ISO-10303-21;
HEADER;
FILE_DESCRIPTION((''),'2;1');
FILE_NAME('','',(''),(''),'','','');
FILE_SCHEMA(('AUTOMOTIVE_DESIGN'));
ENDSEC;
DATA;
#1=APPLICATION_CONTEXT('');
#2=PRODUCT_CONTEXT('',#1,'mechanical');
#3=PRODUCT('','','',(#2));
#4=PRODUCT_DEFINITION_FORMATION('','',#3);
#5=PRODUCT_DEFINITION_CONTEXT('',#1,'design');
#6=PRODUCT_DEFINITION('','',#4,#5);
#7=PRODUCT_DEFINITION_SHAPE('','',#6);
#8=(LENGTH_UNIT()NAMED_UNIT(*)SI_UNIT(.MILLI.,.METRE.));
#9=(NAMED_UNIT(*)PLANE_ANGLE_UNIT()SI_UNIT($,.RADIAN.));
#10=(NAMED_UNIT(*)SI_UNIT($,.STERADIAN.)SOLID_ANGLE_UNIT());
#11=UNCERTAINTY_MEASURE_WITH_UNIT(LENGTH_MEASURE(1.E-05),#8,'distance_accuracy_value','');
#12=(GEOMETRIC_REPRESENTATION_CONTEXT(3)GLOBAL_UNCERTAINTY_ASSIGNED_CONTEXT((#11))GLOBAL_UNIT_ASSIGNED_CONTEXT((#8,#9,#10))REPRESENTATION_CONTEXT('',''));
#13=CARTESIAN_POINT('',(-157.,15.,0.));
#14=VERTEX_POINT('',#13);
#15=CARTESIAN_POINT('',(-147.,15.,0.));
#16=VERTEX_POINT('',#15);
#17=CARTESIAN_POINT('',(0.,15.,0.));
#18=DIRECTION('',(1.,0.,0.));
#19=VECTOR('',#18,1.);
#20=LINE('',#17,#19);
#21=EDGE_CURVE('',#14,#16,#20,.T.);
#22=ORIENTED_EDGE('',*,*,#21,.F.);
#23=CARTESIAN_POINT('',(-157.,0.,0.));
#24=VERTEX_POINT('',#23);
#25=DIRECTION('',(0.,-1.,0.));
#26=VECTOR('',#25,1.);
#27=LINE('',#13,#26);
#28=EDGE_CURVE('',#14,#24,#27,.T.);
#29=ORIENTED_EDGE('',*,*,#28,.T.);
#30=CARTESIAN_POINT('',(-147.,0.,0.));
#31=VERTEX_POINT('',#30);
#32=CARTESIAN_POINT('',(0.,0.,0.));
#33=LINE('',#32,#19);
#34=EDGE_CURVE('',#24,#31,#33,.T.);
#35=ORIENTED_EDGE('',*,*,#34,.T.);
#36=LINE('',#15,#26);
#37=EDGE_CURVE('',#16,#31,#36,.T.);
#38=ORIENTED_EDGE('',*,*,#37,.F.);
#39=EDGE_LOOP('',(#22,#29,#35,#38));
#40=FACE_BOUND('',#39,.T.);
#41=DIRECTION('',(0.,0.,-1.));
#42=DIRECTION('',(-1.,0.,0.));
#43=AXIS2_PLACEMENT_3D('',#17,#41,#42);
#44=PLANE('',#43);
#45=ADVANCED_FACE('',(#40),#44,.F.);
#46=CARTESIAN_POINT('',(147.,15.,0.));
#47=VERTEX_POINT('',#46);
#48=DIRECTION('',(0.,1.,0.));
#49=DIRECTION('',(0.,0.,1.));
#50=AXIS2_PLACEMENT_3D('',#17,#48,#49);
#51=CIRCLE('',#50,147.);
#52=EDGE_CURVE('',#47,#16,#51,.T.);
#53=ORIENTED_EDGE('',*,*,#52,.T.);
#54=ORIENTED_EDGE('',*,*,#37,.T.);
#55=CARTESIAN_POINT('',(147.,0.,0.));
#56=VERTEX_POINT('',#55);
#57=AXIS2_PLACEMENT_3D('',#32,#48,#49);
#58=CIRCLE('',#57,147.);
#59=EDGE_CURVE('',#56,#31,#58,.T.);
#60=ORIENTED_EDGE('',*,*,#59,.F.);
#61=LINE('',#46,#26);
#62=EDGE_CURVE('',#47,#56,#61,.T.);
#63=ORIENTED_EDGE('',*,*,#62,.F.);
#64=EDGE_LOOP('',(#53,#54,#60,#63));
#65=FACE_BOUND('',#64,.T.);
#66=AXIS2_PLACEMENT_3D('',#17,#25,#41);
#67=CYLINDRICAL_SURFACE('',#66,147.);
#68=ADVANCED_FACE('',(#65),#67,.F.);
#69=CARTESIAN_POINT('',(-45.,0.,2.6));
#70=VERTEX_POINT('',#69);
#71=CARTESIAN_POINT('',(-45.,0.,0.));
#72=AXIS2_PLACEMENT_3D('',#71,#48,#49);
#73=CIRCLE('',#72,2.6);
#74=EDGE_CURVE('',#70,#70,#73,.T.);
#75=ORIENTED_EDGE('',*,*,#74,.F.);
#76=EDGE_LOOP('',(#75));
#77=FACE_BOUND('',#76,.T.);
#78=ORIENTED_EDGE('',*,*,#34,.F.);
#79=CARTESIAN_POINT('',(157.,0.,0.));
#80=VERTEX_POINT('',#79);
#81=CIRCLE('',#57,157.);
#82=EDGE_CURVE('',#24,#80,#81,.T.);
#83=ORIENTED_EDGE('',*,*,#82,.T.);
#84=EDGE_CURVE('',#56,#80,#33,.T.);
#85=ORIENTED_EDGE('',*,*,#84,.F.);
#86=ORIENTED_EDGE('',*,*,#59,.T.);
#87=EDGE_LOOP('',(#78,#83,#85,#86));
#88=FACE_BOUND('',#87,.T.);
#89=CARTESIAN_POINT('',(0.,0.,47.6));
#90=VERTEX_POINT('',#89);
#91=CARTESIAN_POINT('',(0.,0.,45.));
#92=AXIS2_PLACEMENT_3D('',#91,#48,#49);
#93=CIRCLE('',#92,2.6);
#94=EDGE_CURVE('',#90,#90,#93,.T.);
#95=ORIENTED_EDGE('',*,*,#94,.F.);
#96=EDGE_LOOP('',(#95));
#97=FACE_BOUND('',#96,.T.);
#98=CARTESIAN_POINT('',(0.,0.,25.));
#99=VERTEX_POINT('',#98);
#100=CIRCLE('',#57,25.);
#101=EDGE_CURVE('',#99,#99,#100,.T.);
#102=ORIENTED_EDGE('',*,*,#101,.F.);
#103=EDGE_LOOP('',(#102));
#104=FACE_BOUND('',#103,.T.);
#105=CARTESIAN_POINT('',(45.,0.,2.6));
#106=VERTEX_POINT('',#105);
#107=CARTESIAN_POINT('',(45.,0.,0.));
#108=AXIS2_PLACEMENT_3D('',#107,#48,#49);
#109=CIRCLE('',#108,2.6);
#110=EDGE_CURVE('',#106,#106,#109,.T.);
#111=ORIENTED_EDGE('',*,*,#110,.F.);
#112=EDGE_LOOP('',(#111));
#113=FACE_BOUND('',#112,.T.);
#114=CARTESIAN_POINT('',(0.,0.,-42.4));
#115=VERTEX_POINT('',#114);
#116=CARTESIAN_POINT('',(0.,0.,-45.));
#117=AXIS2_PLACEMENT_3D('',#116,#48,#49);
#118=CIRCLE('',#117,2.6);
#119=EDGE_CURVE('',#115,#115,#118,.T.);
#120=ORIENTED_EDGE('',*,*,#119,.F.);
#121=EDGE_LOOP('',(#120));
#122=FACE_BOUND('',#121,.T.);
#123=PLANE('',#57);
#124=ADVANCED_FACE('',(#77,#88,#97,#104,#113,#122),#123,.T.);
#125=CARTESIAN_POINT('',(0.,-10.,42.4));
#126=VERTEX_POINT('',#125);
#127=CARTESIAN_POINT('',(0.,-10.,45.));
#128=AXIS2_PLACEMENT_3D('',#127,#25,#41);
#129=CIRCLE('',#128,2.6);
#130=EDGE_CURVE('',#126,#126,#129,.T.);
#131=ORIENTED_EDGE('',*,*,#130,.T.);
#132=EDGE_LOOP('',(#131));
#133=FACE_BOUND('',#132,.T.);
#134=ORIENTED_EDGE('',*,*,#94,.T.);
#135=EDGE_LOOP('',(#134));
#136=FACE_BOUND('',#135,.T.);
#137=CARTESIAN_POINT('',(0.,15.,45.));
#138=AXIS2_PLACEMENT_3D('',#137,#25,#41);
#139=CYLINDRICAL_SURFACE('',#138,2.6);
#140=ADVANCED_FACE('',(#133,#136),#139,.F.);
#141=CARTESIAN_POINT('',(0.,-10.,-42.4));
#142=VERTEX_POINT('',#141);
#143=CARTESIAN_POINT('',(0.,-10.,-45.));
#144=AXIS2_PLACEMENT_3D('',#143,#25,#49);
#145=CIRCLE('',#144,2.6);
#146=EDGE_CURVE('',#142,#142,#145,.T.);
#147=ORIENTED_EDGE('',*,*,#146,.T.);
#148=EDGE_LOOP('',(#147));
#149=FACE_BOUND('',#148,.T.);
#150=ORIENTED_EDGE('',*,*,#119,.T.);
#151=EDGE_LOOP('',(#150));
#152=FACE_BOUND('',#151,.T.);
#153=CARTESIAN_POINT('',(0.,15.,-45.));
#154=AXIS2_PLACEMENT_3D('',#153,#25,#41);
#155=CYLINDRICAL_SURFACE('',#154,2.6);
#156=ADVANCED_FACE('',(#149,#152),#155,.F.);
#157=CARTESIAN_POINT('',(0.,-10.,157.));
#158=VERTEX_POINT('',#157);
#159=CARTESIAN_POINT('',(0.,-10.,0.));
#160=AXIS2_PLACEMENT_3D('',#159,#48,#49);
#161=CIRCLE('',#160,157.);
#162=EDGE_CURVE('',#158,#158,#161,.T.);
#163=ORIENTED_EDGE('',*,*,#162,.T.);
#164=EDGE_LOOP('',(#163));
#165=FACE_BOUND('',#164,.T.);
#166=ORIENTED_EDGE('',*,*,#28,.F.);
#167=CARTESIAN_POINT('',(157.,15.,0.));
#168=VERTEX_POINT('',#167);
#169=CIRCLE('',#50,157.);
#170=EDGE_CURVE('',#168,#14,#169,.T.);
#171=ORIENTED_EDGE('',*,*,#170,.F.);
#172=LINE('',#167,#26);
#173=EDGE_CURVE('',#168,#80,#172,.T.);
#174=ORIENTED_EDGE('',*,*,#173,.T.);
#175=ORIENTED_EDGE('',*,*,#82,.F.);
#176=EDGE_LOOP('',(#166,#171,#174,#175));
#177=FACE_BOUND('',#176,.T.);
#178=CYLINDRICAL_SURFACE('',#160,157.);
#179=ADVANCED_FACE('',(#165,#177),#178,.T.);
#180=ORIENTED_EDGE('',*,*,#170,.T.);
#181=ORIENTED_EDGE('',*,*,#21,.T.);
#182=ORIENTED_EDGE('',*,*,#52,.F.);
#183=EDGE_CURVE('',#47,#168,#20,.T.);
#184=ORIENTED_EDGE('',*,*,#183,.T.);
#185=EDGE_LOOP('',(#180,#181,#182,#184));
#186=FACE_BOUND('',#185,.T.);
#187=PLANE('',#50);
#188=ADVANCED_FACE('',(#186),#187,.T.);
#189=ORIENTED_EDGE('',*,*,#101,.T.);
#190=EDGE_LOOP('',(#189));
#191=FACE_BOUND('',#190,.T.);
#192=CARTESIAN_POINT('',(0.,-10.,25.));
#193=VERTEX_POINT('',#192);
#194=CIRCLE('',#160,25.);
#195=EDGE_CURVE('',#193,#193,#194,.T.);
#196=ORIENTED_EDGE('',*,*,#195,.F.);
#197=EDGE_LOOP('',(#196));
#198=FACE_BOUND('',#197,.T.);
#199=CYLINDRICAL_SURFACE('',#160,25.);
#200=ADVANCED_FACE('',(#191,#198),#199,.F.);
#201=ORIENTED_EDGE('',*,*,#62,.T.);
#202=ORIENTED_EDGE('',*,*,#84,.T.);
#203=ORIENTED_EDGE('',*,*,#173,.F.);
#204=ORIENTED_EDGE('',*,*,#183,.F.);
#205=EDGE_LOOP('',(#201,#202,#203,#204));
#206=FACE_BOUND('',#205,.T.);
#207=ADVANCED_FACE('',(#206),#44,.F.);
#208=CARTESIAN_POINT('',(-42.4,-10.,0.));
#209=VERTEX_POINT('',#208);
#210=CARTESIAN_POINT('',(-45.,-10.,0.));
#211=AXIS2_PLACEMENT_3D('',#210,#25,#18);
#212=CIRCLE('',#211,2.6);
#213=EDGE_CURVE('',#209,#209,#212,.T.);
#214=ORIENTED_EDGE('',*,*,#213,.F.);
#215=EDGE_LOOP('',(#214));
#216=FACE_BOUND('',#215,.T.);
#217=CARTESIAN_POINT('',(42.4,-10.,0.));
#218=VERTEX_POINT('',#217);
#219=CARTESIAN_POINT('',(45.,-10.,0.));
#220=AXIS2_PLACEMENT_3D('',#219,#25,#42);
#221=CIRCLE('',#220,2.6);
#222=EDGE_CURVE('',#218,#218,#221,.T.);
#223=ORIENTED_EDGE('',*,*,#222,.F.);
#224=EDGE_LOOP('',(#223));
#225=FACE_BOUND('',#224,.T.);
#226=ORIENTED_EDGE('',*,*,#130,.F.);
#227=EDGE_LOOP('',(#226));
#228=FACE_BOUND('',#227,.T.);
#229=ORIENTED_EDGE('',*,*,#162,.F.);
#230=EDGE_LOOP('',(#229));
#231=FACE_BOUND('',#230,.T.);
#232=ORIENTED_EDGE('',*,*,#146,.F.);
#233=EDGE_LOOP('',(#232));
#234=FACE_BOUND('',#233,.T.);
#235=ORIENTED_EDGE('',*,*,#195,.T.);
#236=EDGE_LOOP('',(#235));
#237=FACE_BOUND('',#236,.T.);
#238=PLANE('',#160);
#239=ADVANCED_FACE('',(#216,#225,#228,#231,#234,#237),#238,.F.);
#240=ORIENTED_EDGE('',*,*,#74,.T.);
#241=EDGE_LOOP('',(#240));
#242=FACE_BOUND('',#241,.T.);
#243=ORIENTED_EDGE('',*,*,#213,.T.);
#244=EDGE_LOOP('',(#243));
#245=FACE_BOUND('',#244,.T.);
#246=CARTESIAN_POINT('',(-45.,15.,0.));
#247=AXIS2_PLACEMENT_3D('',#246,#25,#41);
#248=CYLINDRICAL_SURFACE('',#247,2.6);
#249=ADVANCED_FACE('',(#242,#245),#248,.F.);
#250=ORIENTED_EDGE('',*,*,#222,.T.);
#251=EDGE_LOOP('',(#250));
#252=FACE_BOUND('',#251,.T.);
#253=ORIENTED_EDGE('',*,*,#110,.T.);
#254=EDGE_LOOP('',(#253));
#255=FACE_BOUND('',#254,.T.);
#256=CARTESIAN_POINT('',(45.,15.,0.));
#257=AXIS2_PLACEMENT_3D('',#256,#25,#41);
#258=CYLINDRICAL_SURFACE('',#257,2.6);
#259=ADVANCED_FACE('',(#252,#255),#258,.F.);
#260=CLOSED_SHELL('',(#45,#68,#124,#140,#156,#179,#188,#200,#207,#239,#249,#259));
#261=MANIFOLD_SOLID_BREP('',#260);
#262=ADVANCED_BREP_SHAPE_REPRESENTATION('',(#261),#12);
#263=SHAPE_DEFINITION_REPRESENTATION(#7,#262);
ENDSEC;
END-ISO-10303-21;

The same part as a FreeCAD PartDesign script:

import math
import FreeCAD as App
import Part
import Sketcher

V = App.Vector

doc = App.newDocument("Part")
params = doc.addObject("Spreadsheet::Sheet", "Params")
for row, (alias, value) in enumerate([
    ("sketch1_diameter", "314 mm"),
    ("pad1_length", "10 mm"),
    ("sketch2_radius", "157 mm"),
    ("sketch2_radius2", "147 mm"),
    ("pad2_length", "15 mm"),
    ("sketch3_diameter", "50 mm"),
    ("sketch4_diameter", "5.2 mm"),
], start=1):
    params.set(f"A{row}", alias)
    params.set(f"B{row}", "=" + value)
    params.setAlias(f"B{row}", alias)

body = doc.addObject("PartDesign::Body", "Body")

# Sketch on XZ plane
sketch1 = doc.addObject("Sketcher::SketchObject", "Sketch")
body.addObject(sketch1)
sketch1.AttachmentSupport = (doc.XZ_Plane, [""])
sketch1.MapMode = "FlatFace"
sketch1.addGeometry(Part.Circle(V(0, 0, 0), V(0, 0, 1), 157), False)
sketch1.addConstraint([
    Sketcher.Constraint("Coincident", 0, 3, -1, 1),
    Sketcher.Constraint("Diameter", 0, 314.0),
])
sketch1.setExpression("Constraints[1]", "Params.sketch1_diameter")
pad1 = doc.addObject("PartDesign::Pad", "Pad")
body.addObject(pad1)
pad1.Profile = sketch1
pad1.setExpression("Length", "Params.pad1_length")

# Sketch on XZ plane
sketch2 = doc.addObject("Sketcher::SketchObject", "Sketch001")
body.addObject(sketch2)
sketch2.AttachmentSupport = (doc.XZ_Plane, [""])
sketch2.MapMode = "FlatFace"
sketch2.AttachmentOffset = App.Placement(V(0, 0, -15), App.Rotation())
sketch2.addGeometry([
    Part.ArcOfCircle(Part.Circle(V(0, 0, 0), V(0, 0, 1), 157), math.radians(180), math.radians(360)),
    Part.LineSegment(V(-157, 0, 0), V(-147, 0, 0)),
    Part.ArcOfCircle(Part.Circle(V(0, 0, 0), V(0, 0, 1), 147), math.radians(180), math.radians(360)),
    Part.LineSegment(V(147, 0, 0), V(157, 0, 0)),
], False)
sketch2.addConstraint([
    Sketcher.Constraint("Coincident", 0, 1, 1, 1),
    Sketcher.Constraint("Coincident", 1, 2, 2, 1),
    Sketcher.Constraint("Coincident", 2, 2, 3, 1),
    Sketcher.Constraint("Coincident", 3, 2, 0, 2),
    Sketcher.Constraint("Horizontal", 1),
    Sketcher.Constraint("Horizontal", 3),
    Sketcher.Constraint("Coincident", 0, 3, -1, 1),
    Sketcher.Constraint("Coincident", 2, 3, -1, 1),
    Sketcher.Constraint("PointOnObject", 0, 1, -1),
    Sketcher.Constraint("PointOnObject", 2, 2, -1),
    Sketcher.Constraint("Radius", 0, 157.0),
    Sketcher.Constraint("Radius", 2, 147.0),
])
sketch2.setExpression("Constraints[10]", "Params.sketch2_radius")
sketch2.setExpression("Constraints[11]", "Params.sketch2_radius2")
pad2 = doc.addObject("PartDesign::Pad", "Pad001")
body.addObject(pad2)
pad2.Profile = sketch2
pad2.setExpression("Length", "Params.pad2_length")

# Sketch on XZ plane
sketch3 = doc.addObject("Sketcher::SketchObject", "Sketch002")
body.addObject(sketch3)
sketch3.AttachmentSupport = (doc.XZ_Plane, [""])
sketch3.MapMode = "FlatFace"
sketch3.addGeometry(Part.Circle(V(0, 0, 0), V(0, 0, 1), 25), False)
sketch3.addConstraint([
    Sketcher.Constraint("Coincident", 0, 3, -1, 1),
    Sketcher.Constraint("Diameter", 0, 50.0),
])
sketch3.setExpression("Constraints[1]", "Params.sketch3_diameter")
pocket1 = doc.addObject("PartDesign::Pocket", "Pocket")
body.addObject(pocket1)
pocket1.Profile = sketch3
pocket1.Type = "ThroughAll"
pocket1.Reversed = True

# Sketch on XZ plane
sketch4 = doc.addObject("Sketcher::SketchObject", "Sketch003")
body.addObject(sketch4)
sketch4.AttachmentSupport = (doc.XZ_Plane, [""])
sketch4.MapMode = "FlatFace"
sketch4.AttachmentOffset = App.Placement(V(0, 0, 10), App.Rotation())
sketch4.addGeometry(Part.Circle(V(0, 45, 0), V(0, 0, 1), 2.6), False)
sketch4.addConstraint([
    Sketcher.Constraint("PointOnObject", 0, 3, -2),
    Sketcher.Constraint("Diameter", 0, 5.2),
    Sketcher.Constraint("DistanceY", -1, 1, 0, 3, 45.0),
])
sketch4.setExpression("Constraints[1]", "Params.sketch4_diameter")
pocket2 = doc.addObject("PartDesign::Pocket", "Pocket001")
body.addObject(pocket2)
pocket2.Profile = sketch4
pocket2.Type = "ThroughAll"
doc.recompute()

polarpattern = doc.addObject("PartDesign::PolarPattern", "PolarPattern")
body.addObject(polarpattern)
polarpattern.Originals = [pocket2]
polarpattern.Axis = (doc.Y_Axis, [""])
polarpattern.Angle = 360
polarpattern.Occurrences = 4
body.Tip = polarpattern

doc.recompute()
